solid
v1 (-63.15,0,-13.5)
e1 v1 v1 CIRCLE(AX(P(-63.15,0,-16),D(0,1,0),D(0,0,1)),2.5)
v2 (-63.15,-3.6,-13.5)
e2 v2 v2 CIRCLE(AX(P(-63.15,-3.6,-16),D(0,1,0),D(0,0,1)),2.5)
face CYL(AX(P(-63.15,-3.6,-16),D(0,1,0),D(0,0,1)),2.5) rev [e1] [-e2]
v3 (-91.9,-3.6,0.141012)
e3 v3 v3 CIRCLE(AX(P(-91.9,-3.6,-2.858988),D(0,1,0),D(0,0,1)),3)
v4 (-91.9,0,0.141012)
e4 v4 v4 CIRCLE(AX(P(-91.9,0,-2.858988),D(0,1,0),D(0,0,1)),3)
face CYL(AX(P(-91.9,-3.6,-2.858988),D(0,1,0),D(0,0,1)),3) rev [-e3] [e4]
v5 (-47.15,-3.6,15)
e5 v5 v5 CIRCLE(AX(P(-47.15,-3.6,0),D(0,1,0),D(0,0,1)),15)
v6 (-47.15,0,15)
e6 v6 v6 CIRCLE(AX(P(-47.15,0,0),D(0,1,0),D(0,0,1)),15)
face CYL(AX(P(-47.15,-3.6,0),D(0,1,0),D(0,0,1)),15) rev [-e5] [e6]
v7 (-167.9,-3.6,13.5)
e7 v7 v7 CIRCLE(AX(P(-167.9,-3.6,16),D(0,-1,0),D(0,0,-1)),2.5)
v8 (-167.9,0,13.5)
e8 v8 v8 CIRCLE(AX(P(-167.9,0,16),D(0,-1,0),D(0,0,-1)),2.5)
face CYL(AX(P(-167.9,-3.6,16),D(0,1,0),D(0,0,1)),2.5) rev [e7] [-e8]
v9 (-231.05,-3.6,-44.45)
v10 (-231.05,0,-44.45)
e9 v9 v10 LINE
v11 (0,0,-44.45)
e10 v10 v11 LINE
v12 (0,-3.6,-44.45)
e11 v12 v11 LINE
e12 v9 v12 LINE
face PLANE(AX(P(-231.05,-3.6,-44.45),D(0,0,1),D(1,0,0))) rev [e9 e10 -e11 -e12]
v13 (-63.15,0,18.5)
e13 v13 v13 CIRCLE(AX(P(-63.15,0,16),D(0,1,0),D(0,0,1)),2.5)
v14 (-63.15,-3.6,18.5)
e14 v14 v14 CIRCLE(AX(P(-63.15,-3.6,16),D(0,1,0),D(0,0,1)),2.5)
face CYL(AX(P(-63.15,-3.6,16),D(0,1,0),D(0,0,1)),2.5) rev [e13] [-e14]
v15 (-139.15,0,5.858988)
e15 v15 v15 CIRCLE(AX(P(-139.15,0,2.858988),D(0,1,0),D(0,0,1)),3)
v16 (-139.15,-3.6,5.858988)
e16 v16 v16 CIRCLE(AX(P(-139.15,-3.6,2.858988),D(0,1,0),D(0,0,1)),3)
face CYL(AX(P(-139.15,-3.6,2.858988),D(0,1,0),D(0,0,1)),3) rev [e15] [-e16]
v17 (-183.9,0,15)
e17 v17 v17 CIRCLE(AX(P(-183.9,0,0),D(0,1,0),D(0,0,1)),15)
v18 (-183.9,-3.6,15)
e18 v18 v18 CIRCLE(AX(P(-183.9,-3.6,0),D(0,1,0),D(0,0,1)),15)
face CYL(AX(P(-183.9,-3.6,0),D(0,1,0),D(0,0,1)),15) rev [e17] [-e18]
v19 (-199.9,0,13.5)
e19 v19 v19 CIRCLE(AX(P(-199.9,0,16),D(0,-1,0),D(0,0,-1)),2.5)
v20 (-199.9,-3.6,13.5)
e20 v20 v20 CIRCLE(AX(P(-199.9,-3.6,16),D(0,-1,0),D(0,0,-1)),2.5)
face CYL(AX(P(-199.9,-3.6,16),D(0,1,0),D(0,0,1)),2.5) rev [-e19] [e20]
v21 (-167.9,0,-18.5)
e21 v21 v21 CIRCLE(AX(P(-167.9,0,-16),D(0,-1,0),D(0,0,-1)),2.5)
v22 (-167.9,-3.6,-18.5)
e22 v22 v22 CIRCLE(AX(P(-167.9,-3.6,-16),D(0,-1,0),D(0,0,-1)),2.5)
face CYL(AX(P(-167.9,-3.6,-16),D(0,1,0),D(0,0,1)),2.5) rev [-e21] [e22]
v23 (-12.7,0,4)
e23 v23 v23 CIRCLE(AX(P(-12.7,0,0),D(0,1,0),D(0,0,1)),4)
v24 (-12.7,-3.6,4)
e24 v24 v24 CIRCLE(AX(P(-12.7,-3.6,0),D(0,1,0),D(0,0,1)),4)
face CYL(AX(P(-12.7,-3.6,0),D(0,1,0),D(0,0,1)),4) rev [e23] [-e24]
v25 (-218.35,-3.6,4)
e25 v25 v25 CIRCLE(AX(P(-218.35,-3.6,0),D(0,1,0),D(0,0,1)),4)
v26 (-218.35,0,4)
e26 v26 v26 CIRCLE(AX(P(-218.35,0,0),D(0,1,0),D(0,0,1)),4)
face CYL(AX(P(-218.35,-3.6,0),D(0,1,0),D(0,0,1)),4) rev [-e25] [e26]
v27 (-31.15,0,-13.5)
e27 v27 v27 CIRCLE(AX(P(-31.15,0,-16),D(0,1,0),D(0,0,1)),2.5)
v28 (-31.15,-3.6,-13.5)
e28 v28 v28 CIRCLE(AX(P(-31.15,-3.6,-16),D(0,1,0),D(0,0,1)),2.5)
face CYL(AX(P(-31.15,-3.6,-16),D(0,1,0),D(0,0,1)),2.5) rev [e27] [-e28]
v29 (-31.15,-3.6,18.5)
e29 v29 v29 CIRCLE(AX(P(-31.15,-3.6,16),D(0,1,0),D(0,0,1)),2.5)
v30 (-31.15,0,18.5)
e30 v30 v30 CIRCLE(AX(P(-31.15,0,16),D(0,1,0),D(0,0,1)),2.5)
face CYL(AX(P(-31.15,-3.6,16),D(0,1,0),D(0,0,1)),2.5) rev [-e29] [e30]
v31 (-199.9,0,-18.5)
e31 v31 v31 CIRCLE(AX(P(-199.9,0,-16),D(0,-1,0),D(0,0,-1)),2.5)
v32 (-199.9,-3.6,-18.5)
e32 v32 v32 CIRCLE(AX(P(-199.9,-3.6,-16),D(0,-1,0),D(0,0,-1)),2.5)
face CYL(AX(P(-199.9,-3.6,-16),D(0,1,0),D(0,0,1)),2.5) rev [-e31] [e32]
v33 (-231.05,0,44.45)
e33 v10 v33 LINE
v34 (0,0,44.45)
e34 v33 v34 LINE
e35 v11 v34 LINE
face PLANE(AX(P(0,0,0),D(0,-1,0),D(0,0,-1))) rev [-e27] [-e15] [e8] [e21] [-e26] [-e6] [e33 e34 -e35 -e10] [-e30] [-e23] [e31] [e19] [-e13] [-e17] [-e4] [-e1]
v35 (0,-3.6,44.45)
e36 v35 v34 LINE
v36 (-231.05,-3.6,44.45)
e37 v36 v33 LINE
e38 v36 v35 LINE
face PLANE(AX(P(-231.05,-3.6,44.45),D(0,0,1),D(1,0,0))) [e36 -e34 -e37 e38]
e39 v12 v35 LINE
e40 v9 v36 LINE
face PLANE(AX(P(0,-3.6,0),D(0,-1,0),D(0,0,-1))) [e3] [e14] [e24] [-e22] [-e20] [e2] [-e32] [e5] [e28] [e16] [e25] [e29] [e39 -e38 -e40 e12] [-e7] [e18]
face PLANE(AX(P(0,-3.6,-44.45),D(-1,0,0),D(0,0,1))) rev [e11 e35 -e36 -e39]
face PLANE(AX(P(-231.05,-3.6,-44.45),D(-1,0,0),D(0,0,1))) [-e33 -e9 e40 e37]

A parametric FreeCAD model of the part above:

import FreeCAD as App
import Part
import Sketcher
Q = App.Units.Quantity


def add_polygon(sketch, points):
    """Adds a closed chain of lines whose ends are joined by coincident constraints."""
    first, n = sketch.GeometryCount, len(points)
    for a, b in zip(points, points[1:] + points[:1]):
        sketch.addGeometry(Part.LineSegment(App.Vector(*a, 0), App.Vector(*b, 0)), False)
    for i in range(n):
        sketch.addConstraint(Sketcher.Constraint("Coincident", first + i, 2, first + (i + 1) % n, 1))

doc = App.newDocument("Part")
body = doc.addObject("PartDesign::Body", "Body")

# Sketch on XZ plane
sketch1 = body.newObject("Sketcher::SketchObject", "Sketch")
sketch1.AttachmentSupport = (doc.getObject("XZ_Plane"), [""])
sketch1.MapMode = "FlatFace"
add_polygon(sketch1, [(-231.05, -44.45), (-231.05, 44.45), (0, 44.45), (0, -44.45)])  # lines 0-3
sketch1.addGeometry(Part.Circle(App.Vector(-199.9, 16, 0), App.Vector(0, 0, 1), 2.5), False)  # 4
sketch1.addGeometry(Part.Circle(App.Vector(-167.9, 16, 0), App.Vector(0, 0, 1), 2.5), False)  # 5
sketch1.addGeometry(Part.Circle(App.Vector(-139.15, 2.858988, 0), App.Vector(0, 0, 1), 3), False)  # 6
sketch1.addGeometry(Part.Circle(App.Vector(-63.15, 16, 0), App.Vector(0, 0, 1), 2.5), False)  # 7
sketch1.addGeometry(Part.Circle(App.Vector(-31.15, 16, 0), App.Vector(0, 0, 1), 2.5), False)  # 8
sketch1.addGeometry(Part.Circle(App.Vector(-218.35, 0, 0), App.Vector(0, 0, 1), 4), False)  # 9
sketch1.addGeometry(Part.Circle(App.Vector(-183.9, 0, 0), App.Vector(0, 0, 1), 15), False)  # 10
sketch1.addGeometry(Part.Circle(App.Vector(-199.9, -16, 0), App.Vector(0, 0, 1), 2.5), False)  # 11
sketch1.addGeometry(Part.Circle(App.Vector(-167.9, -16, 0), App.Vector(0, 0, 1), 2.5), False)  # 12
sketch1.addGeometry(Part.Circle(App.Vector(-91.9, -2.858988, 0), App.Vector(0, 0, 1), 3), False)  # 13
sketch1.addGeometry(Part.Circle(App.Vector(-47.15, 0, 0), App.Vector(0, 0, 1), 15), False)  # 14
sketch1.addGeometry(Part.Circle(App.Vector(-12.7, 0, 0), App.Vector(0, 0, 1), 4), False)  # 15
sketch1.addGeometry(Part.Circle(App.Vector(-63.15, -16, 0), App.Vector(0, 0, 1), 2.5), False)  # 16
sketch1.addGeometry(Part.Circle(App.Vector(-31.15, -16, 0), App.Vector(0, 0, 1), 2.5), False)  # 17
sketch1.addConstraint(Sketcher.Constraint("Vertical", 0))
sketch1.addConstraint(Sketcher.Constraint("Horizontal", 1))
sketch1.addConstraint(Sketcher.Constraint("Vertical", 2))
sketch1.addConstraint(Sketcher.Constraint("Horizontal", 3))
sketch1.addConstraint(Sketcher.Constraint("Equal", 4, 5))
sketch1.addConstraint(Sketcher.Constraint("Equal", 5, 7))
sketch1.addConstraint(Sketcher.Constraint("Equal", 7, 8))
sketch1.addConstraint(Sketcher.Constraint("Equal", 8, 11))
sketch1.addConstraint(Sketcher.Constraint("Equal", 11, 12))
sketch1.addConstraint(Sketcher.Constraint("Equal", 6, 13))
sketch1.addConstraint(Sketcher.Constraint("Equal", 10, 14))
sketch1.addConstraint(Sketcher.Constraint("Equal", 9, 15))
sketch1.addConstraint(Sketcher.Constraint("Equal", 12, 16))
sketch1.addConstraint(Sketcher.Constraint("Equal", 16, 17))
sketch1.addConstraint(Sketcher.Constraint("Symmetric", 1, 2, 2, 2, -1, 1))
sketch1.addConstraint(Sketcher.Constraint("Symmetric", 4, 3, 11, 3, -1))
sketch1.addConstraint(Sketcher.Constraint("Symmetric", 5, 3, 12, 3, -1))
sketch1.addConstraint(Sketcher.Constraint("Symmetric", 7, 3, 16, 3, -1))
sketch1.addConstraint(Sketcher.Constraint("Symmetric", 8, 3, 17, 3, -1))
sketch1.addConstraint(Sketcher.Constraint("PointOnObject", 9, 3, -1))
sketch1.addConstraint(Sketcher.Constraint("PointOnObject", 10, 3, -1))
sketch1.addConstraint(Sketcher.Constraint("PointOnObject", 14, 3, -1))
sketch1.addConstraint(Sketcher.Constraint("PointOnObject", 15, 3, -1))
sketch1.addConstraint(Sketcher.Constraint("Horizontal", 4, 3, 5, 3))
sketch1.addConstraint(Sketcher.Constraint("Horizontal", 5, 3, 7, 3))
sketch1.addConstraint(Sketcher.Constraint("Horizontal", 7, 3, 8, 3))
sketch1.addConstraint(Sketcher.Constraint("Diameter", 4, Q("5 mm")))
sketch1.addConstraint(Sketcher.Constraint("Diameter", 6, Q("6 mm")))
sketch1.addConstraint(Sketcher.Constraint("Diameter", 9, Q("8 mm")))
sketch1.addConstraint(Sketcher.Constraint("Diameter", 10, Q("30 mm")))
sketch1.addConstraint(Sketcher.Constraint("DistanceY", 0, 1, 0, 2, Q("88.9 mm")))
sketch1.addConstraint(Sketcher.Constraint("DistanceY", -1, 1, 4, 3, Q("16 mm")))
sketch1.addConstraint(Sketcher.Constraint("DistanceX", 4, 3, 5, 3, Q("32 mm")))
sketch1.addConstraint(Sketcher.Constraint("DistanceX", 6, 3, 7, 3, Q("76 mm")))
sketch1.addConstraint(Sketcher.Constraint("DistanceX", 7, 3, 8, 3, Q("32 mm")))
sketch1.addConstraint(Sketcher.Constraint("DistanceX", 4, 3, 10, 3, Q("16 mm")))
sketch1.addConstraint(Sketcher.Constraint("DistanceX", 12, 3, 13, 3, Q("76 mm")))
sketch1.addConstraint(Sketcher.Constraint("DistanceX", 7, 3, 14, 3, Q("16 mm")))
sketch1.addConstraint(Sketcher.Constraint("DistanceX", 1, 1, 1, 2, Q("231.05 mm")))
sketch1.addConstraint(Sketcher.Constraint("DistanceX", 4, 3, -1, 1, Q("199.9 mm")))
sketch1.addConstraint(Sketcher.Constraint("DistanceX", 15, 3, -1, 1, Q("12.7 mm")))
sketch1.addConstraint(Sketcher.Constraint("DistanceX", 9, 3, 6, 3, Q("79.2 mm")))
sketch1.addConstraint(Sketcher.Constraint("DistanceX", 0, 2, 9, 3, Q("12.7 mm")))
sketch1.addConstraint(Sketcher.Constraint("DistanceY", -1, 1, 6, 3, Q("2.858988 mm")))
sketch1.addConstraint(Sketcher.Constraint("DistanceY", 13, 3, -1, 1, Q("2.858988 mm")))
pad1 = body.newObject("PartDesign::Pad", "Pad")
pad1.Profile = sketch1
pad1.Length = 3.6

doc.recompute()
